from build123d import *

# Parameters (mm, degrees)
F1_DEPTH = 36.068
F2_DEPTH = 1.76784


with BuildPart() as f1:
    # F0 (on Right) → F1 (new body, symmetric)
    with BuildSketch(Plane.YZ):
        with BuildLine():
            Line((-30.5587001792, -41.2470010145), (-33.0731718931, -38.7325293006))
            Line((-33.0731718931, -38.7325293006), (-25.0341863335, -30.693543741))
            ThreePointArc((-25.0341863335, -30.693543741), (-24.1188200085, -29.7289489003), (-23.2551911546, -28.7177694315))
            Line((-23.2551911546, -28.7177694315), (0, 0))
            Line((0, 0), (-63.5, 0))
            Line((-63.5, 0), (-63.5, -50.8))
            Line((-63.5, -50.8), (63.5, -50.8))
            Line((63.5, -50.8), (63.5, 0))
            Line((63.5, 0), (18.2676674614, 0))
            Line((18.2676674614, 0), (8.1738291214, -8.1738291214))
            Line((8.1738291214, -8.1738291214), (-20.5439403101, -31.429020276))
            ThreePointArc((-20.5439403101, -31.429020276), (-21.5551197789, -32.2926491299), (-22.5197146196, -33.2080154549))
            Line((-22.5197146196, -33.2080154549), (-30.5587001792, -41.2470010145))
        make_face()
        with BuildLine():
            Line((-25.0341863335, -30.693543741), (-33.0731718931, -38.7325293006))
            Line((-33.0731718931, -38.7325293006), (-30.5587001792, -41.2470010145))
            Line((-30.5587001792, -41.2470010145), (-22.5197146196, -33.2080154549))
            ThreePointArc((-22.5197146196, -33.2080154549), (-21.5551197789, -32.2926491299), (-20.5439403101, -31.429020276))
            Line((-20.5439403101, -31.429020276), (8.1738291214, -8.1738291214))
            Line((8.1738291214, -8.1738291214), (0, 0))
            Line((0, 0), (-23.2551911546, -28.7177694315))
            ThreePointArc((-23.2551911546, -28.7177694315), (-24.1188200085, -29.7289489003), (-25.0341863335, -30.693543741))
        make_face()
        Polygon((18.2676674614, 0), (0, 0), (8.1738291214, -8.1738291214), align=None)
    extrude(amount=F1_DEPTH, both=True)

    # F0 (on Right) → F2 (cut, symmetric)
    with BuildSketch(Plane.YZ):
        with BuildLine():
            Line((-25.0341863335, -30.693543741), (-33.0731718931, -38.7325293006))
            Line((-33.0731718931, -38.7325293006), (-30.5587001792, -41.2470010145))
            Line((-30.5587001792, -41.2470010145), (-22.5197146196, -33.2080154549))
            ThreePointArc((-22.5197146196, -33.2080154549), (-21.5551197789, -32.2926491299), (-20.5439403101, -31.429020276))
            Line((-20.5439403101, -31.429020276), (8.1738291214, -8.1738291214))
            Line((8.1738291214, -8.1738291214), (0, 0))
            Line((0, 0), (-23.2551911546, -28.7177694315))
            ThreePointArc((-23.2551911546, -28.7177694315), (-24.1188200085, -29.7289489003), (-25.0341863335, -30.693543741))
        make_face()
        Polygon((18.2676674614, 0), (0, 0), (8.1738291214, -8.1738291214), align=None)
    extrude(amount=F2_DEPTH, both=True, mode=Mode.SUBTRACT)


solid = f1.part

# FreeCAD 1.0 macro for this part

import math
import FreeCAD as App
import Part
import Sketcher
Q = App.Units.Quantity

doc = App.newDocument("Part")
body = doc.addObject("PartDesign::Body", "Body")

# Sketch on YZ plane
sketch1 = body.newObject("Sketcher::SketchObject", "Sketch")
sketch1.AttachmentSupport = (doc.getObject("YZ_Plane"), [""])
sketch1.MapMode = "FlatFace"
sketch1.addGeometry(Part.LineSegment(App.Vector(-64, 0, 0), App.Vector(-64, -51, 0)), False)
sketch1.addGeometry(Part.LineSegment(App.Vector(-64, -51, 0), App.Vector(64, -51, 0)), False)
sketch1.addGeometry(Part.LineSegment(App.Vector(64, -51, 0), App.Vector(64, 0, 0)), False)
sketch1.addGeometry(Part.LineSegment(App.Vector(64, 0, 0), App.Vector(-64, 0, 0)), False)
sketch1.addConstraint(Sketcher.Constraint("Coincident", 0, 2, 1, 1))
sketch1.addConstraint(Sketcher.Constraint("Coincident", 1, 2, 2, 1))
sketch1.addConstraint(Sketcher.Constraint("Coincident", 2, 2, 3, 1))
sketch1.addConstraint(Sketcher.Constraint("Coincident", 3, 2, 0, 1))
sketch1.addConstraint(Sketcher.Constraint("Vertical", 0))
sketch1.addConstraint(Sketcher.Constraint("Horizontal", 1))
sketch1.addConstraint(Sketcher.Constraint("Vertical", 2))
sketch1.addConstraint(Sketcher.Constraint("Horizontal", 3))
sketch1.addConstraint(Sketcher.Constraint("Symmetric", 2, 2, 3, 2, -1, 1))
sketch1.addConstraint(Sketcher.Constraint("DistanceX", 1, 1, 1, 2, Q("5 in")))
sketch1.addConstraint(Sketcher.Constraint("DistanceY", 0, 2, 0, 1, Q("2 in")))
pad1 = body.newObject("PartDesign::Pad", "Pad")
pad1.Profile = sketch1
pad1.Length = Q("2.84 in")
pad1.Midplane = True

# Sketch on YZ plane
sketch2 = body.newObject("Sketcher::SketchObject", "Sketch001")
sketch2.AttachmentSupport = (doc.getObject("YZ_Plane"), [""])
sketch2.MapMode = "FlatFace"
sketch2.addGeometry(Part.LineSegment(App.Vector(-25, -30.7, 0), App.Vector(-33.1, -38.7, 0)), False)
sketch2.addGeometry(Part.LineSegment(App.Vector(-33.1, -38.7, 0), App.Vector(-30.6, -41.2, 0)), False)
sketch2.addGeometry(Part.LineSegment(App.Vector(-30.6, -41.2, 0), App.Vector(-22.5, -33.2, 0)), False)
sketch2.addGeometry(Part.ArcOfCircle(Part.Circle(App.Vector(-4.6, -51.2, 0), App.Vector(0, 0, 1), 25.4), math.radians(129), math.radians(135)), False)
sketch2.addGeometry(Part.LineSegment(App.Vector(-20.5, -31.4, 0), App.Vector(8.2, -8.2, 0)), False)
sketch2.addGeometry(Part.LineSegment(App.Vector(8.2, -8.2, 0), App.Vector(18.3, 0, 0)), False)
sketch2.addGeometry(Part.LineSegment(App.Vector(18.3, 0, 0), App.Vector(0, 0, 0)), False)
sketch2.addGeometry(Part.LineSegment(App.Vector(0, 0, 0), App.Vector(-23.3, -28.7, 0)), False)
sketch2.addGeometry(Part.ArcOfCircle(Part.Circle(App.Vector(-43, -12.7, 0), App.Vector(0, 0, 1), 25.4), math.radians(-45), math.radians(-39)), False)
sketch2.addConstraint(Sketcher.Constraint("Coincident", 0, 2, 1, 1))
sketch2.addConstraint(Sketcher.Constraint("Coincident", 1, 2, 2, 1))
sketch2.addConstraint(Sketcher.Constraint("Tangent", 2, 2, 3, 2))
sketch2.addConstraint(Sketcher.Constraint("Tangent", 3, 1, 4, 1))
sketch2.addConstraint(Sketcher.Constraint("Coincident", 4, 2, 5, 1))
sketch2.addConstraint(Sketcher.Constraint("Coincident", 5, 2, 6, 1))
sketch2.addConstraint(Sketcher.Constraint("Coincident", 6, 2, 7, 1))
sketch2.addConstraint(Sketcher.Constraint("Tangent", 7, 2, 8, 2))
sketch2.addConstraint(Sketcher.Constraint("Tangent", 8, 1, 0, 1))
sketch2.addConstraint(Sketcher.Constraint("Horizontal", 6))
sketch2.addConstraint(Sketcher.Constraint("Coincident", 6, 2, -1, 1))
sketch2.addConstraint(Sketcher.Constraint("Equal", 3, 8))
sketch2.addConstraint(Sketcher.Constraint("Perpendicular", 0, 1))
sketch2.addConstraint(Sketcher.Constraint("Perpendicular", 1, 2))
sketch2.addConstraint(Sketcher.Constraint("Parallel", 4, 5))
sketch2.addConstraint(Sketcher.Constraint("Equal", 0, 2))
sketch2.addConstraint(Sketcher.Constraint("Equal", 4, 7))
sketch2.addConstraint(Sketcher.Constraint("Radius", 3, Q("1 in")))
sketch2.addConstraint(Sketcher.Constraint("Angle", 0, Q("-135 deg")))
sketch2.addConstraint(Sketcher.Constraint("Angle", 4, Q("39 deg")))
sketch2.addConstraint(Sketcher.Constraint("Angle", 7, Q("-129 deg")))
sketch2.addConstraint(Sketcher.Constraint("Distance", 1, Q("0.14 in")))
sketch2.addConstraint(Sketcher.Constraint("DistanceX", 8, 3, -1, 1, Q("42.994699 mm")))
sketch2.addConstraint(Sketcher.Constraint("DistanceX", 1, 2, -1, 1, Q("30.5587 mm")))
pocket1 = body.newObject("PartDesign::Pocket", "Pocket")
pocket1.Profile = sketch2
pocket1.Length = Q("0.1392 in")
pocket1.Midplane = True

doc.recompute()
